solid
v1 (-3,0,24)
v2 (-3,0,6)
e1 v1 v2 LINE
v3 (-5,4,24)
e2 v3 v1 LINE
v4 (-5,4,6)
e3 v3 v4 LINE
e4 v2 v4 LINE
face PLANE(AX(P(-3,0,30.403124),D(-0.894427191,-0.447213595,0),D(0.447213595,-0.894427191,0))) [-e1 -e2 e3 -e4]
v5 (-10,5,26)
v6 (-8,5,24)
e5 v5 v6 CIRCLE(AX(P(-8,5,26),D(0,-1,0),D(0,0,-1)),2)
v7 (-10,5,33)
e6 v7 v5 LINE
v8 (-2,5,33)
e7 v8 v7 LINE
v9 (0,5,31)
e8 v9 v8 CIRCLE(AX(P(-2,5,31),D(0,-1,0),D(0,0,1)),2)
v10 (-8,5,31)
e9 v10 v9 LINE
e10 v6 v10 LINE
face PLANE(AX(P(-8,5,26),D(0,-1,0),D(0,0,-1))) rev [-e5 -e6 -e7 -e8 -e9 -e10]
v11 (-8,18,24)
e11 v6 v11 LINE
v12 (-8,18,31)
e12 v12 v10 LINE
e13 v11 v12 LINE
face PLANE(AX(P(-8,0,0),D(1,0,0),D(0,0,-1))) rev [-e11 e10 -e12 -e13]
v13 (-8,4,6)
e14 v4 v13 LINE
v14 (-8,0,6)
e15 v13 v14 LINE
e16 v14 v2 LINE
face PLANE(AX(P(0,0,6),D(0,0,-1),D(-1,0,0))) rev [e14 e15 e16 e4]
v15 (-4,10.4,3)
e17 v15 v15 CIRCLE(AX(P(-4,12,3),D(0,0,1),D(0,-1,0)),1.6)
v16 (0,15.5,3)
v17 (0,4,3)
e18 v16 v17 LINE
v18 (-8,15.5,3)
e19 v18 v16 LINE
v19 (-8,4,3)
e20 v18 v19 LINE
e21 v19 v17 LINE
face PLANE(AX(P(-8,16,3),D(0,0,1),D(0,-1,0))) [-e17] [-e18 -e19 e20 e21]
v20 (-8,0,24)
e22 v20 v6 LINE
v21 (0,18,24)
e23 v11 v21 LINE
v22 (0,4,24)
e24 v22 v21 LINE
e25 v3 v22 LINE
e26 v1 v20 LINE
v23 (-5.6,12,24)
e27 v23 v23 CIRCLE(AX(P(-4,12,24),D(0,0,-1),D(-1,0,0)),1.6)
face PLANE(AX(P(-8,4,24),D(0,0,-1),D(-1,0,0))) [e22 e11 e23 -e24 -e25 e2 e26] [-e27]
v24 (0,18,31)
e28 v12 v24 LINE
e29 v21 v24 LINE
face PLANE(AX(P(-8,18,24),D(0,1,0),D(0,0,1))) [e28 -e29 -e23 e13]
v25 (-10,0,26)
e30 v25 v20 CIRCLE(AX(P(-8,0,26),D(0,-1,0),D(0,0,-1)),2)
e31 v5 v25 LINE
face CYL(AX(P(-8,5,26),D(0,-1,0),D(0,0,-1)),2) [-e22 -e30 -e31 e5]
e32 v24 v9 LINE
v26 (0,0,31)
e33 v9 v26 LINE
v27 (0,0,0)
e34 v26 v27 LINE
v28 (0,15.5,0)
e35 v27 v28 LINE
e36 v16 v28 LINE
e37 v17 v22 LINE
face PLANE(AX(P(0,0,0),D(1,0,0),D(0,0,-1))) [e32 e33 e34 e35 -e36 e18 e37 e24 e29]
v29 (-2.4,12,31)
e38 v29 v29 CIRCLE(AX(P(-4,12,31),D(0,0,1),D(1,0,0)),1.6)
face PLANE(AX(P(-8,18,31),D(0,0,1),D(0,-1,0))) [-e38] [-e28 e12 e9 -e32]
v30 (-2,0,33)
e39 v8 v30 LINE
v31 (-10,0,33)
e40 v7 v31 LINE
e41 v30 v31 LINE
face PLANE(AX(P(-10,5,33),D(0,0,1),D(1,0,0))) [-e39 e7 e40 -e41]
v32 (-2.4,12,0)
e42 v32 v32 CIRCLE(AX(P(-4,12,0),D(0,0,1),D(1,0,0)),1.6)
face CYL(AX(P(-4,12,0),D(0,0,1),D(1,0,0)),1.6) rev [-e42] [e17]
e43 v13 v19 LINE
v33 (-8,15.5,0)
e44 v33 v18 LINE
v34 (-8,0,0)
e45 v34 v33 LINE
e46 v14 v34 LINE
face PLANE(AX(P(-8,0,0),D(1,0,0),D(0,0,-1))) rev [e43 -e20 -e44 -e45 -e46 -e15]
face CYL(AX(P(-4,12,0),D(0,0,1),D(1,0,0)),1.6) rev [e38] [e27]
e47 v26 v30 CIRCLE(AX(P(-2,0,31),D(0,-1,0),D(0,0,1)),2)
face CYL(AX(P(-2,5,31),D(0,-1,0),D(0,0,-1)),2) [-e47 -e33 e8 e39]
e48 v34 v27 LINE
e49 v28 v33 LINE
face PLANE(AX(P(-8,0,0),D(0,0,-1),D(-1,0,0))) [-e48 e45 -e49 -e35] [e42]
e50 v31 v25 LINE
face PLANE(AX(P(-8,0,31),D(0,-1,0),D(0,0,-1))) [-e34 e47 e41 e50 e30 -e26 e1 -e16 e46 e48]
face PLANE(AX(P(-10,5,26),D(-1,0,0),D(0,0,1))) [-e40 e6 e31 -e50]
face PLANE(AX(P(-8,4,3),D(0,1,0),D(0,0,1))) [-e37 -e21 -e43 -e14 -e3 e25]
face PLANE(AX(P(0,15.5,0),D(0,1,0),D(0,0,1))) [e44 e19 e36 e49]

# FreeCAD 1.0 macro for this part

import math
import FreeCAD as App
import Part
import Sketcher


def add_polygon(sketch, points):
    """Adds a closed chain of lines whose ends are joined by coincident constraints."""
    first, n = sketch.GeometryCount, len(points)
    for a, b in zip(points, points[1:] + points[:1]):
        sketch.addGeometry(Part.LineSegment(App.Vector(*a, 0), App.Vector(*b, 0)), False)
    for i in range(n):
        sketch.addConstraint(Sketcher.Constraint("Coincident", first + i, 2, first + (i + 1) % n, 1))

doc = App.newDocument("Part")
params = doc.addObject("Spreadsheet::Sheet", "Params")
for row, (alias, value) in enumerate([
    ("sketch1_width", "16 mm"),
    ("sketch1_width2", "12 mm"),
    ("sketch1_width3", "14 mm"),
    ("sketch1_height", "3 mm"),
    ("sketch1_height2", "21 mm"),
    ("pad1_length", "8 mm"),
    ("sketch2_width", "5 mm"),
    ("sketch2_width2", "3 mm"),
    ("sketch2_height", "4 mm"),
    ("pocket1_length", "21 mm"),
    ("sketch3_width", "3 mm"),
    ("sketch3_width2", "5 mm"),
    ("sketch3_height", "4 mm"),
    ("pad2_length", "3 mm"),
    ("sketch4_radius", "2 mm"),
    ("sketch4_width", "8 mm"),
    ("sketch4_height", "7 mm"),
    ("pad3_length", "5 mm"),
    ("sketch5_diameter", "3.2 mm"),
    ("sketch6_width", "8 mm"),
    ("sketch6_height", "3 mm"),
    ("pocket3_length", "0.5 mm"),
], start=1):
    params.set(f"A{row}", alias)
    params.set(f"B{row}", "=" + value)
    params.setAlias(f"B{row}", alias)

body = doc.addObject("PartDesign::Body", "Body")

# Sketch on YZ plane
sketch1 = doc.addObject("Sketcher::SketchObject", "Sketch")
body.addObject(sketch1)
sketch1.AttachmentSupport = (doc.YZ_Plane, [""])
sketch1.MapMode = "FlatFace"
add_polygon(sketch1, [(0, 0), (16, 0), (16, 3), (4, 3), (4, 24), (18, 24), (18, 31), (0, 31)])  # lines 0-7
sketch1.addConstraint([
    Sketcher.Constraint("Horizontal", 0),
    Sketcher.Constraint("Vertical", 1),
    Sketcher.Constraint("Horizontal", 2),
    Sketcher.Constraint("Vertical", 3),
    Sketcher.Constraint("Horizontal", 4),
    Sketcher.Constraint("Vertical", 5),
    Sketcher.Constraint("Horizontal", 6),
    Sketcher.Constraint("Vertical", 7),
    Sketcher.Constraint("Coincident", 7, 2, -1, 1),
    Sketcher.Constraint("DistanceX", 0, 1, 0, 2, 16.0),
    Sketcher.Constraint("DistanceX", 2, 2, 2, 1, 12.0),
    Sketcher.Constraint("DistanceX", 4, 1, 4, 2, 14.0),
    Sketcher.Constraint("DistanceY", 1, 1, 1, 2, 3.0),
    Sketcher.Constraint("DistanceY", 3, 1, 3, 2, 21.0),
    Sketcher.Constraint("DistanceY", 5, 1, 5, 2, 7.0),
])
sketch1.setExpression("Constraints[17]", "Params.sketch1_width")
sketch1.setExpression("Constraints[18]", "Params.sketch1_width2")
sketch1.setExpression("Constraints[19]", "Params.sketch1_width3")
sketch1.setExpression("Constraints[20]", "Params.sketch1_height")
sketch1.setExpression("Constraints[21]", "Params.sketch1_height2")
pad1 = doc.addObject("PartDesign::Pad", "Pad")
body.addObject(pad1)
pad1.Profile = sketch1
pad1.setExpression("Length", "Params.pad1_length")
pad1.Reversed = True

# Sketch on XY plane
sketch2 = doc.addObject("Sketcher::SketchObject", "Sketch001")
body.addObject(sketch2)
sketch2.AttachmentSupport = (doc.XY_Plane, [""])
sketch2.MapMode = "FlatFace"
sketch2.AttachmentOffset = App.Placement(App.Vector(0, 0, 3), App.Rotation())
add_polygon(sketch2, [(-8, 0), (-3, 0), (-5, 4), (-8, 4)])  # lines 0-3
sketch2.addConstraint([
    Sketcher.Constraint("Horizontal", 0),
    Sketcher.Constraint("Horizontal", 2),
    Sketcher.Constraint("Vertical", 3),
    Sketcher.Constraint("PointOnObject", 0, 2, -1),
    Sketcher.Constraint("DistanceX", 0, 1, 0, 2, 5.0),
    Sketcher.Constraint("DistanceX", 2, 2, 2, 1, 3.0),
    Sketcher.Constraint("DistanceY", 3, 2, 3, 1, 4.0),
    Sketcher.Constraint("DistanceX", 0, 2, -1, 1, 3.0),
])
sketch2.setExpression("Constraints[8]", "Params.sketch2_width")
sketch2.setExpression("Constraints[9]", "Params.sketch2_width2")
sketch2.setExpression("Constraints[10]", "Params.sketch2_height")
pocket1 = doc.addObject("PartDesign::Pocket", "Pocket")
body.addObject(pocket1)
pocket1.Profile = sketch2
pocket1.setExpression("Length", "Params.pocket1_length")
pocket1.Reversed = True

# Sketch on XY plane
sketch3 = doc.addObject("Sketcher::SketchObject", "Sketch002")
body.addObject(sketch3)
sketch3.AttachmentSupport = (doc.XY_Plane, [""])
sketch3.MapMode = "FlatFace"
sketch3.AttachmentOffset = App.Placement(App.Vector(0, 0, 3), App.Rotation())
add_polygon(sketch3, [(-5, 4), (-8, 4), (-8, 0), (-3, 0)])  # lines 0-3
sketch3.addConstraint([
    Sketcher.Constraint("Horizontal", 0),
    Sketcher.Constraint("Vertical", 1),
    Sketcher.Constraint("Horizontal", 2),
    Sketcher.Constraint("PointOnObject", 1, 2, -1),
    Sketcher.Constraint("DistanceX", 0, 2, 0, 1, 3.0),
    Sketcher.Constraint("DistanceX", 2, 1, 2, 2, 5.0),
    Sketcher.Constraint("DistanceY", 1, 2, 1, 1, 4.0),
    Sketcher.Constraint("DistanceX", 0, 2, -1, 1, 8.0),
])
sketch3.setExpression("Constraints[8]", "Params.sketch3_width")
sketch3.setExpression("Constraints[9]", "Params.sketch3_width2")
sketch3.setExpression("Constraints[10]", "Params.sketch3_height")
pad2 = doc.addObject("PartDesign::Pad", "Pad001")
body.addObject(pad2)
pad2.Profile = sketch3
pad2.setExpression("Length", "Params.pad2_length")

# Sketch on XZ plane
sketch4 = doc.addObject("Sketcher::SketchObject", "Sketch003")
body.addObject(sketch4)
sketch4.AttachmentSupport = (doc.XZ_Plane, [""])
sketch4.MapMode = "FlatFace"
sketch4.addGeometry([
    Part.LineSegment(App.Vector(-10, 33, 0), App.Vector(-10, 26, 0)),  # 0
    Part.ArcOfCircle(Part.Circle(App.Vector(-8, 26, 0), App.Vector(0, 0, 1), 2), math.radians(-180), math.radians(-90)),  # 1
    Part.LineSegment(App.Vector(-8, 24, 0), App.Vector(-8, 31, 0)),  # 2
    Part.LineSegment(App.Vector(-8, 31, 0), App.Vector(0, 31, 0)),  # 3
    Part.ArcOfCircle(Part.Circle(App.Vector(-2, 31, 0), App.Vector(0, 0, 1), 2), math.radians(0), math.radians(90)),  # 4
    Part.LineSegment(App.Vector(-2, 33, 0), App.Vector(-10, 33, 0)),  # 5
], False)
sketch4.addConstraint([
    Sketcher.Constraint("Tangent", 0, 2, 1, 1),
    Sketcher.Constraint("Coincident", 1, 2, 2, 1),
    Sketcher.Constraint("Coincident", 2, 2, 3, 1),
    Sketcher.Constraint("Coincident", 3, 2, 4, 1),
    Sketcher.Constraint("Tangent", 4, 2, 5, 1),
    Sketcher.Constraint("Coincident", 5, 2, 0, 1),
    Sketcher.Constraint("Vertical", 0),
    Sketcher.Constraint("Vertical", 2),
    Sketcher.Constraint("Horizontal", 3),
    Sketcher.Constraint("Horizontal", 5),
    Sketcher.Constraint("Equal", 1, 4),
    Sketcher.Constraint("PointOnObject", 3, 2, -2),
    Sketcher.Constraint("Horizontal", 4, 3, 2, 2),
    Sketcher.Constraint("Equal", 3, 5),
    Sketcher.Constraint("Radius", 1, 2.0),
    Sketcher.Constraint("DistanceX", 3, 1, 3, 2, 8.0),
    Sketcher.Constraint("DistanceY", 0, 2, 0, 1, 7.0),
    Sketcher.Constraint("DistanceY", -1, 1, 1, 3, 26.0),
])
sketch4.setExpression("Constraints[14]", "Params.sketch4_radius")
sketch4.setExpression("Constraints[15]", "Params.sketch4_width")
sketch4.setExpression("Constraints[16]", "Params.sketch4_height")
pad3 = doc.addObject("PartDesign::Pad", "Pad002")
body.addObject(pad3)
pad3.Profile = sketch4
pad3.setExpression("Length", "Params.pad3_length")
pad3.Reversed = True

# Sketch on XY plane
sketch5 = doc.addObject("Sketcher::SketchObject", "Sketch004")
body.addObject(sketch5)
sketch5.AttachmentSupport = (doc.XY_Plane, [""])
sketch5.MapMode = "FlatFace"
sketch5.AttachmentOffset = App.Placement(App.Vector(0, 0, 31), App.Rotation())
sketch5.addGeometry(Part.Circle(App.Vector(-4, 12, 0), App.Vector(0, 0, 1), 1.6), False)
sketch5.addConstraint([
    Sketcher.Constraint("Diameter", 0, 3.2),
    Sketcher.Constraint("DistanceX", 0, 3, -1, 1, 4.0),
    Sketcher.Constraint("DistanceY", -1, 1, 0, 3, 12.0),
])
sketch5.setExpression("Constraints[0]", "Params.sketch5_diameter")
pocket2 = doc.addObject("PartDesign::Pocket", "Pocket001")
body.addObject(pocket2)
pocket2.Profile = sketch5
pocket2.Type = "ThroughAll"

# Sketch on XZ plane
sketch6 = doc.addObject("Sketcher::SketchObject", "Sketch005")
body.addObject(sketch6)
sketch6.AttachmentSupport = (doc.XZ_Plane, [""])
sketch6.MapMode = "FlatFace"
sketch6.AttachmentOffset = App.Placement(App.Vector(0, 0, -16), App.Rotation())
add_polygon(sketch6, [(-8, 0), (-8, 3), (0, 3), (0, 0)])  # lines 0-3
sketch6.addConstraint([
    Sketcher.Constraint("Vertical", 0),
    Sketcher.Constraint("Horizontal", 1),
    Sketcher.Constraint("Vertical", 2),
    Sketcher.Constraint("Horizontal", 3),
    Sketcher.Constraint("Coincident", 2, 2, -1, 1),
    Sketcher.Constraint("DistanceX", 1, 1, 1, 2, 8.0),
    Sketcher.Constraint("DistanceY", 0, 1, 0, 2, 3.0),
])
sketch6.setExpression("Constraints[9]", "Params.sketch6_width")
sketch6.setExpression("Constraints[10]", "Params.sketch6_height")
pocket3 = doc.addObject("PartDesign::Pocket", "Pocket002")
body.addObject(pocket3)
pocket3.Profile = sketch6
pocket3.setExpression("Length", "Params.pocket3_length")
pocket3.Reversed = True

doc.recompute()
